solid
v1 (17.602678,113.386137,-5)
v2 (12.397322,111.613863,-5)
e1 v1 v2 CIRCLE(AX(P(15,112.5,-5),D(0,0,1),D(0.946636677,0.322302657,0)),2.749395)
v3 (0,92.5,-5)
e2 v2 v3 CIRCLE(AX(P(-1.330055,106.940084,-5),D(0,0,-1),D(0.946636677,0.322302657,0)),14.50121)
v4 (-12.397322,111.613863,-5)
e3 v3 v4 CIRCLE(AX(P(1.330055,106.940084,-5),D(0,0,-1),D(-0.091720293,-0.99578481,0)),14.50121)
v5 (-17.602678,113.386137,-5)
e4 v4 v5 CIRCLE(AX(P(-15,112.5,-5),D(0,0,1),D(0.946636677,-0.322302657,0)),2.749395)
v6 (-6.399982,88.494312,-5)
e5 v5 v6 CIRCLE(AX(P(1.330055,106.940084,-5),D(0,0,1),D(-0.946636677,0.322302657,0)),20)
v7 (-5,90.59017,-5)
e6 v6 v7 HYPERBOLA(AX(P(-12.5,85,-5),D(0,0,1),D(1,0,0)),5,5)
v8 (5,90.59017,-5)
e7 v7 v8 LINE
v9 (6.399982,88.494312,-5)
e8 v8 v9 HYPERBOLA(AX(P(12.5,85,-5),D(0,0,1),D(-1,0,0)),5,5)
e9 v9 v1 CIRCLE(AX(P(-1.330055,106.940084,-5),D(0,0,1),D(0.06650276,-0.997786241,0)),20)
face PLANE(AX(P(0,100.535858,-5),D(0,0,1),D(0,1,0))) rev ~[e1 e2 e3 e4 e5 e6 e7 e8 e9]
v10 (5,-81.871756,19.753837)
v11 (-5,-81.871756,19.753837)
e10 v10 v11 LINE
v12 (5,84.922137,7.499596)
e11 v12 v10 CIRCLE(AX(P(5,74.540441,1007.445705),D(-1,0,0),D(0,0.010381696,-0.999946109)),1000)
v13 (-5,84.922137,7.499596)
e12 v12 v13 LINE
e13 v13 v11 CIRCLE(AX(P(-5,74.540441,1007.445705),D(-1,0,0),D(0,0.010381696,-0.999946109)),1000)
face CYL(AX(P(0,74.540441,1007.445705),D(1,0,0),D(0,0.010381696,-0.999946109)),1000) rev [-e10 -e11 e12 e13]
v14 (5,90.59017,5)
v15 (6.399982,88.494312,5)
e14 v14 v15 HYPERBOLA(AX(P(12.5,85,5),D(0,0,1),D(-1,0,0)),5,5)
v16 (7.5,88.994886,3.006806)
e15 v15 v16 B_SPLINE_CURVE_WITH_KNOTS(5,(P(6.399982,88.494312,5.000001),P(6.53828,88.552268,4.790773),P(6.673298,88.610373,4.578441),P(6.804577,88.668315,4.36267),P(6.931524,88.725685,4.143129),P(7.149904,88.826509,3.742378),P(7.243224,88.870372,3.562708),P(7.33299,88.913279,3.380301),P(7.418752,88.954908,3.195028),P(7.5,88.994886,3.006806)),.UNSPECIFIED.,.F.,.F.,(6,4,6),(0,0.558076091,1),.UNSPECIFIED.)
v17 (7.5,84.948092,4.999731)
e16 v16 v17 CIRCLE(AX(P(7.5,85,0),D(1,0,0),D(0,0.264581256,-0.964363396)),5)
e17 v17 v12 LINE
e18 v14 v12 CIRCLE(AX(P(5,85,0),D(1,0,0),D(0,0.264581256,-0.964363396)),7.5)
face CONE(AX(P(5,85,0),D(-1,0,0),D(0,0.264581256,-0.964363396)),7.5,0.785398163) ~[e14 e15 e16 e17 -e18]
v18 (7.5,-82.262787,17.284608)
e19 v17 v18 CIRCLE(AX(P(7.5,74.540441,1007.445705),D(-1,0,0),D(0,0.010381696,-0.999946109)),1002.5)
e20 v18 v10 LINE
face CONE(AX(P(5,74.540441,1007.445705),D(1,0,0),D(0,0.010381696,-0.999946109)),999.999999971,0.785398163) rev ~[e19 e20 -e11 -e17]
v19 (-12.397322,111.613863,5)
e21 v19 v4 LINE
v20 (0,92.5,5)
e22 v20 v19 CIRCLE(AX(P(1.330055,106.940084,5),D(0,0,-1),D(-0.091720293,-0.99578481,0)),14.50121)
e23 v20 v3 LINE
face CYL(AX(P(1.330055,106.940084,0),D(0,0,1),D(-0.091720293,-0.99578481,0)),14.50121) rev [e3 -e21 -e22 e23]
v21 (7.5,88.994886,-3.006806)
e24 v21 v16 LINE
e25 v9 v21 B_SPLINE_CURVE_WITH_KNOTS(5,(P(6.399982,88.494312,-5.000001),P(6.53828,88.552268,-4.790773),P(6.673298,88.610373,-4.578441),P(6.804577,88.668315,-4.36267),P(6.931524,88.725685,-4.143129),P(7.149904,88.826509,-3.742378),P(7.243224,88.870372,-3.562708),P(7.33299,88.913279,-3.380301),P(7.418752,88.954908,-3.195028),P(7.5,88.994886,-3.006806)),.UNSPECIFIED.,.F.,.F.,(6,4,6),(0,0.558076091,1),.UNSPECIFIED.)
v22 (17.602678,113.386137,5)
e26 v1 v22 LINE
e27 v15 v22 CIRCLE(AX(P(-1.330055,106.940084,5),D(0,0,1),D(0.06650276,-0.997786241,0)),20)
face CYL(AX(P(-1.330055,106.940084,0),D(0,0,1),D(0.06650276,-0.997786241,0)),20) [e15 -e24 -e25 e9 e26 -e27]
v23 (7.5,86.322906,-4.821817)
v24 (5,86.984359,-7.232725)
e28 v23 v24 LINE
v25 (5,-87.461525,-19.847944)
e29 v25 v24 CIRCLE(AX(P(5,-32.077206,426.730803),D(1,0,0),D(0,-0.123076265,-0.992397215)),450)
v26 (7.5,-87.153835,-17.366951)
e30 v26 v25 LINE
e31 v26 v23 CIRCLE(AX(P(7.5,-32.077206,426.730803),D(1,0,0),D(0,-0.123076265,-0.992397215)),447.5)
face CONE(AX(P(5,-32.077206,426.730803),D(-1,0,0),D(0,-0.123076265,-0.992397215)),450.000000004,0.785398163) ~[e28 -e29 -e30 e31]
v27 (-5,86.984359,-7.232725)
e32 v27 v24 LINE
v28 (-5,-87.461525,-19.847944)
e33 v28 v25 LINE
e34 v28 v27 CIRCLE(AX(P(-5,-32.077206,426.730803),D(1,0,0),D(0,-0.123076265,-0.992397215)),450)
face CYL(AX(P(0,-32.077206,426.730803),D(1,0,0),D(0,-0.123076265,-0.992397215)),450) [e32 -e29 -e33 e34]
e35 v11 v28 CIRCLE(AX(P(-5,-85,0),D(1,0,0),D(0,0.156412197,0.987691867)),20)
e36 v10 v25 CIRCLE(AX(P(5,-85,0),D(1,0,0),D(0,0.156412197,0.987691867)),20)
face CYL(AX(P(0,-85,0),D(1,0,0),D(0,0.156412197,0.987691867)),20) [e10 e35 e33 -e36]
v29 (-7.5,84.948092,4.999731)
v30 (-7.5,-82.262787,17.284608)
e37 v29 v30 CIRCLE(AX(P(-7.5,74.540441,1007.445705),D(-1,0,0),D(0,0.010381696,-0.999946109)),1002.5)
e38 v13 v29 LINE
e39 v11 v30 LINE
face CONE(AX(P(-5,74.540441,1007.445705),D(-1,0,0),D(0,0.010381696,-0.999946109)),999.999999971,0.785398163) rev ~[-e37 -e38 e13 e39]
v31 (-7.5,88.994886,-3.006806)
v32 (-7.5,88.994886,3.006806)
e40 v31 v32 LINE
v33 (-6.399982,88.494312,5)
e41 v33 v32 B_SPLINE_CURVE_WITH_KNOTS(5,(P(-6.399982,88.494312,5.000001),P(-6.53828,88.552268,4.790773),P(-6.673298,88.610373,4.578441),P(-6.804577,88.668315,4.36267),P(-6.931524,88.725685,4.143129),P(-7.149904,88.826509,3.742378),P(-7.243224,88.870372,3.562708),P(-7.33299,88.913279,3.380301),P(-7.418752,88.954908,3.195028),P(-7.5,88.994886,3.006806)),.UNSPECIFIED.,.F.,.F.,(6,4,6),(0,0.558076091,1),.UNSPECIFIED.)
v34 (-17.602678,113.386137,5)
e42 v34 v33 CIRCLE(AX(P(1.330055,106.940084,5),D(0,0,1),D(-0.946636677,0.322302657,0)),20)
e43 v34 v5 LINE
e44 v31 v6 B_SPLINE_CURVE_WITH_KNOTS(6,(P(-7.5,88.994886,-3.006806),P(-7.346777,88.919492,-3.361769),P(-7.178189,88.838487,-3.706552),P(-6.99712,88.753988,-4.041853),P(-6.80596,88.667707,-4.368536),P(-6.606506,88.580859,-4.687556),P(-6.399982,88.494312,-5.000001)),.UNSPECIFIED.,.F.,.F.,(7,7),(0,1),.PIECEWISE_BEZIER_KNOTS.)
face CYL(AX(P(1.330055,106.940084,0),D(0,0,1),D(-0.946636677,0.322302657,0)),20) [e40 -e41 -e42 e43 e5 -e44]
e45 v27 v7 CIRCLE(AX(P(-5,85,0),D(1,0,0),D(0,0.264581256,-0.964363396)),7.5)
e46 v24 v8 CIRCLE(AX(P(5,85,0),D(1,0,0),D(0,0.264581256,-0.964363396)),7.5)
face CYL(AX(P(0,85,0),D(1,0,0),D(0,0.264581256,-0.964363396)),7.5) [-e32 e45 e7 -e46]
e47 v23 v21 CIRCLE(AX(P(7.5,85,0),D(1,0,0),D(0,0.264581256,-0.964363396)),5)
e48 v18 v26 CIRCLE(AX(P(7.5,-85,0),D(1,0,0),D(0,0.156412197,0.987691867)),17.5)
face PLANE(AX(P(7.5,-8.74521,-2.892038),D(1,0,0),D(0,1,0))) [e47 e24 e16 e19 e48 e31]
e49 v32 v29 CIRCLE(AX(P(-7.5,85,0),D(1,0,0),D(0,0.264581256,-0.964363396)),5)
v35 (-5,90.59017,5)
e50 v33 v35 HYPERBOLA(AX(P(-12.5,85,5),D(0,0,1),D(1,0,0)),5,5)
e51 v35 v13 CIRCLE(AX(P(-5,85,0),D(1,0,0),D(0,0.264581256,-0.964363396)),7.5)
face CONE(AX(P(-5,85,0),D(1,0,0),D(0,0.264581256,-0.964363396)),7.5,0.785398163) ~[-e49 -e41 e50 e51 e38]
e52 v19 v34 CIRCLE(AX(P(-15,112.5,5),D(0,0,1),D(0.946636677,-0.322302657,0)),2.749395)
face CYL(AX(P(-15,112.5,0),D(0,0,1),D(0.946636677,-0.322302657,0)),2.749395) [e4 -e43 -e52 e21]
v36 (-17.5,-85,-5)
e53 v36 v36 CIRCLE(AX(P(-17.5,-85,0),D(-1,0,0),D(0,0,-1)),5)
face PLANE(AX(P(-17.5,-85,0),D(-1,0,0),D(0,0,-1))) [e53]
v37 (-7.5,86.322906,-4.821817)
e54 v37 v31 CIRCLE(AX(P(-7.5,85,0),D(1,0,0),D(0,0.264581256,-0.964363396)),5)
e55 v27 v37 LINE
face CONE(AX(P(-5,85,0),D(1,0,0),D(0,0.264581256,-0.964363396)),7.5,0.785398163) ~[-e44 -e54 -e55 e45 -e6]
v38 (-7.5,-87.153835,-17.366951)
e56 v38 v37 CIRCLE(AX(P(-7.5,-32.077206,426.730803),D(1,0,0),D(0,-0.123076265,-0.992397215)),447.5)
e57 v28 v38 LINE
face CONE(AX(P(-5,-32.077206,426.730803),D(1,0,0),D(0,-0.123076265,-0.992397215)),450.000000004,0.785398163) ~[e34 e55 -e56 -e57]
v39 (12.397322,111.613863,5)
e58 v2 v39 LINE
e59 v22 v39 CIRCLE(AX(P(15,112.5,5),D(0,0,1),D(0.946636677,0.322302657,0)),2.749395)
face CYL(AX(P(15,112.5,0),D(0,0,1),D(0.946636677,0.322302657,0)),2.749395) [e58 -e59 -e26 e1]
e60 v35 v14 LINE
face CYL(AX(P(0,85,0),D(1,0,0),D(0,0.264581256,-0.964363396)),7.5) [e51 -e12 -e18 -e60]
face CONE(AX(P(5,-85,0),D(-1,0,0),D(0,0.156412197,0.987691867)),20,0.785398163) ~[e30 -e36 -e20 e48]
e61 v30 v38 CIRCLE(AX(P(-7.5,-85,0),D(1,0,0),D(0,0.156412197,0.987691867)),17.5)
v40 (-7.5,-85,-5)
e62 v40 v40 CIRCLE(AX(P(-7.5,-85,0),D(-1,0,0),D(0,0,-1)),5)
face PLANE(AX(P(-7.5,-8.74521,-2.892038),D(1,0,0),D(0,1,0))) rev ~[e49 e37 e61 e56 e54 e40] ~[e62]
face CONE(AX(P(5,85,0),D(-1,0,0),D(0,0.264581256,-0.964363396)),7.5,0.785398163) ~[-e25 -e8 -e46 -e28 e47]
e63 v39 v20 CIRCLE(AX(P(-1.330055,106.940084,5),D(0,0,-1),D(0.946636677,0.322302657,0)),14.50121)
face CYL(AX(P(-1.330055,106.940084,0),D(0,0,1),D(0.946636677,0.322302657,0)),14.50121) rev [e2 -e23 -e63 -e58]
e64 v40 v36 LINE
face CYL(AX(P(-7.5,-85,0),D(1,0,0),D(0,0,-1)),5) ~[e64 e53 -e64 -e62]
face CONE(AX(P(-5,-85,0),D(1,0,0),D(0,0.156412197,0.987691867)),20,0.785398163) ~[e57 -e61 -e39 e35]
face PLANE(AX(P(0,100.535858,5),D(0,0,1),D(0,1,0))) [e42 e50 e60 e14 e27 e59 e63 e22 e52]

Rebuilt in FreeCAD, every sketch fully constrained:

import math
import FreeCAD as App
import Part
import Sketcher
from FreeCAD import Vector


def edges_at(feature, points):
    """Names of the edges that pass closest to the given points."""
    edges = feature.Shape.Edges
    near = lambda p: min(range(len(edges)), key=lambda i: edges[i].distToShape(Part.Vertex(*p))[0])
    return sorted({f"Edge{near(p) + 1}" for p in points})

doc = App.newDocument("Part")
body = doc.addObject("PartDesign::Body", "Body")

# Sketch on YZ plane
sketch1 = body.newObject("Sketcher::SketchObject", "Sketch")
sketch1.AttachmentSupport = (doc.getObject("YZ_Plane"), [""])
sketch1.MapMode = "FlatFace"
sketch1.addGeometry([
    Part.ArcOfCircle(Part.Circle(Vector(-85, 0, 0), Vector(0, 0, 1), 20), math.radians(81), math.radians(263)),
    Part.ArcOfCircle(Part.Circle(Vector(-32, 427, 0), Vector(0, 0, 1), 450), math.radians(-97), math.radians(-75)),
    Part.ArcOfCircle(Part.Circle(Vector(85, 0, 0), Vector(0, 0, 1), 8), math.radians(-75), math.radians(91)),
    Part.ArcOfCircle(Part.Circle(Vector(75, 1007, 0), Vector(0, 0, 1), 1000), math.radians(-99), math.radians(-89.41)),
], False)
sketch1.addConstraint([
    Sketcher.Constraint("Tangent", 0, 2, 1, 1),
    Sketcher.Constraint("Tangent", 1, 2, 2, 1),
    Sketcher.Constraint("Tangent", 2, 2, 3, 2),
    Sketcher.Constraint("Tangent", 3, 1, 0, 1),
    Sketcher.Constraint("Symmetric", 0, 3, 2, 3, -1, 1),
    Sketcher.Constraint("PointOnObject", 0, 3, -1),
    Sketcher.Constraint("Radius", 0, 20.0),
    Sketcher.Constraint("Radius", 1, 450.0),
    Sketcher.Constraint("Radius", 3, 1000.0),
    Sketcher.Constraint("Radius", 2, 7.5),
    Sketcher.Constraint("DistanceX", 0, 3, -1, 1, 85.0),
])
pad1 = body.newObject("PartDesign::Pad", "Pad")
pad1.Profile = sketch1
pad1.Length = 15
pad1.Midplane = True
doc.recompute()

chamfer = body.newObject("PartDesign::Chamfer", "Chamfer")
chamfer.Base = (pad1, edges_at(pad1, [
    (-7.5, 0.38, -22.097),
    (-7.5, -104.804, 2.795),
    (-7.5, 1.269, 10.134),
    (7.5, 0.38, -22.097),
    (7.5, -104.804, 2.795),
    (7.5, 1.269, 10.134),
]))
chamfer.Size = 2.5

# Sketch on YZ plane
sketch2 = body.newObject("Sketcher::SketchObject", "Sketch001")
sketch2.AttachmentSupport = (doc.getObject("YZ_Plane"), [""])
sketch2.MapMode = "FlatFace"
sketch2.AttachmentOffset = App.Placement(Vector(0, 0, -7.5), App.Rotation())
sketch2.addGeometry(Part.Circle(Vector(-85, 0, 0), Vector(0, 0, 1), 5), False)
sketch2.addConstraint([
    Sketcher.Constraint("PointOnObject", 0, 3, -1),
    Sketcher.Constraint("Diameter", 0, 10.0),
    Sketcher.Constraint("DistanceX", 0, 3, -1, 1, 85.0),
])
pad2 = body.newObject("PartDesign::Pad", "Pad001")
pad2.Profile = sketch2
pad2.Length = 10
pad2.Reversed = True

# Sketch on XY plane
sketch3 = body.newObject("Sketcher::SketchObject", "Sketch002")
sketch3.AttachmentSupport = (doc.getObject("XY_Plane"), [""])
sketch3.MapMode = "FlatFace"
sketch3.addGeometry([
    Part.ArcOfCircle(Part.Circle(Vector(-1.3, 106.9, 0), Vector(0, 0, 1), 20), math.radians(-86), math.radians(19)),  # 0
    Part.ArcOfCircle(Part.Circle(Vector(15, 112.5, 0), Vector(0, 0, 1), 2.7), math.radians(19), math.radians(199)),  # 1
    Part.ArcOfCircle(Part.Circle(Vector(-1.3, 106.9, 0), Vector(0, 0, 1), 14.5), math.radians(-85), math.radians(19)),  # 2
    Part.ArcOfCircle(Part.Circle(Vector(1.3, 106.9, 0), Vector(0, 0, 1), 14.5), math.radians(161), math.radians(265)),  # 3
    Part.ArcOfCircle(Part.Circle(Vector(-15, 112.5, 0), Vector(0, 0, 1), 2.7), math.radians(-19), math.radians(161)),  # 4
    Part.ArcOfCircle(Part.Circle(Vector(1.3, 106.9, 0), Vector(0, 0, 1), 20), math.radians(161), math.radians(266)),  # 5
], False)
sketch3.addConstraint([
    Sketcher.Constraint("Tangent", 0, 2, 1, 1),
    Sketcher.Constraint("Tangent", 1, 2, 2, 2),
    Sketcher.Constraint("Coincident", 2, 1, 3, 2),
    Sketcher.Constraint("Tangent", 3, 1, 4, 1),
    Sketcher.Constraint("Tangent", 4, 2, 5, 1),
    Sketcher.Constraint("Coincident", 5, 2, 0, 1),
    Sketcher.Constraint("Coincident", 2, 3, 0, 3),
    Sketcher.Constraint("Coincident", 5, 3, 3, 3),
    Sketcher.Constraint("Equal", 2, 3),
    Sketcher.Constraint("Equal", 1, 4),
    Sketcher.Constraint("Symmetric", 0, 3, 3, 3, -2),
    Sketcher.Constraint("Horizontal", 1, 3, 4, 3),
    Sketcher.Constraint("Radius", 0, 20.0),
    Sketcher.Constraint("DistanceX", -1, 1, 1, 3, 15.0),
    Sketcher.Constraint("DistanceY", -1, 1, 1, 3, 112.5),
    Sketcher.Constraint("DistanceY", -1, 1, 2, 1, 92.5),
    Sketcher.Constraint("Radius", 2, 14.50121),
])
pad3 = body.newObject("PartDesign::Pad", "Pad002")
pad3.Profile = sketch3
pad3.Length = 10
pad3.Midplane = True

doc.recompute()
